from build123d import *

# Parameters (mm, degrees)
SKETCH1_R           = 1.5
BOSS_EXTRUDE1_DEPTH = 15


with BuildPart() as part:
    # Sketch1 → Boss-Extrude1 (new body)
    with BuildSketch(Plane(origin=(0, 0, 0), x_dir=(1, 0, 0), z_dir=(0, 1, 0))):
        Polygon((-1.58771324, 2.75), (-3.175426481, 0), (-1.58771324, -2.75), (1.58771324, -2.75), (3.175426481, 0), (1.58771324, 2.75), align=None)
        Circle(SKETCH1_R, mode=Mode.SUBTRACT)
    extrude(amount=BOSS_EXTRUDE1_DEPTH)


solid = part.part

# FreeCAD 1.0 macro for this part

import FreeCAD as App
import Part
import Sketcher

V = App.Vector
Q = App.Units.Quantity

doc = App.newDocument("Part")
body = doc.addObject("PartDesign::Body", "Body")

# Sketch on XZ plane
sketch1 = body.newObject("Sketcher::SketchObject", "Sketch")
sketch1.AttachmentSupport = (doc.getObject("XZ_Plane"), [""])
sketch1.MapMode = "FlatFace"
sketch1.addGeometry([
    Part.LineSegment(V(-1.6, -2.8, 0), V(-3.2, 0, 0)),  # 0
    Part.LineSegment(V(-3.2, 0, 0), V(-1.6, 2.8, 0)),  # 1
    Part.LineSegment(V(-1.6, 2.8, 0), V(1.6, 2.8, 0)),  # 2
    Part.LineSegment(V(1.6, 2.8, 0), V(3.2, 0, 0)),  # 3
    Part.LineSegment(V(3.2, 0, 0), V(1.6, -2.8, 0)),  # 4
    Part.LineSegment(V(1.6, -2.8, 0), V(-1.6, -2.8, 0)),  # 5
    Part.Circle(V(0, 0, 0), V(0, 0, 1), 1.5),  # 6
], False)
sketch1.addConstraint([
    Sketcher.Constraint("Coincident", 0, 2, 1, 1),
    Sketcher.Constraint("Coincident", 1, 2, 2, 1),
    Sketcher.Constraint("Coincident", 2, 2, 3, 1),
    Sketcher.Constraint("Coincident", 3, 2, 4, 1),
    Sketcher.Constraint("Coincident", 4, 2, 5, 1),
    Sketcher.Constraint("Coincident", 5, 2, 0, 1),
    Sketcher.Constraint("Horizontal", 2),
    Sketcher.Constraint("Horizontal", 5),
    Sketcher.Constraint("Coincident", 6, 3, -1, 1),
    Sketcher.Constraint("Symmetric", 0, 2, 3, 2, -1, 1),
    Sketcher.Constraint("Symmetric", 1, 2, 4, 2, -1, 1),
    Sketcher.Constraint("PointOnObject", 0, 2, -1),
    Sketcher.Constraint("Parallel", 0, 3),
    Sketcher.Constraint("Vertical", 2, 2, 4, 2),
    Sketcher.Constraint("Diameter", 6, Q("3 mm")),
    Sketcher.Constraint("Angle", 0, Q("120 deg")),
    Sketcher.Constraint("DistanceY", 4, 2, 2, 2, Q("5.5 mm")),
    Sketcher.Constraint("DistanceX", 2, 1, 2, 2, Q("3.175426 mm")),
])
pad1 = body.newObject("PartDesign::Pad", "Pad")
pad1.Profile = sketch1
pad1.Length = 15
pad1.Reversed = True

doc.recompute()
